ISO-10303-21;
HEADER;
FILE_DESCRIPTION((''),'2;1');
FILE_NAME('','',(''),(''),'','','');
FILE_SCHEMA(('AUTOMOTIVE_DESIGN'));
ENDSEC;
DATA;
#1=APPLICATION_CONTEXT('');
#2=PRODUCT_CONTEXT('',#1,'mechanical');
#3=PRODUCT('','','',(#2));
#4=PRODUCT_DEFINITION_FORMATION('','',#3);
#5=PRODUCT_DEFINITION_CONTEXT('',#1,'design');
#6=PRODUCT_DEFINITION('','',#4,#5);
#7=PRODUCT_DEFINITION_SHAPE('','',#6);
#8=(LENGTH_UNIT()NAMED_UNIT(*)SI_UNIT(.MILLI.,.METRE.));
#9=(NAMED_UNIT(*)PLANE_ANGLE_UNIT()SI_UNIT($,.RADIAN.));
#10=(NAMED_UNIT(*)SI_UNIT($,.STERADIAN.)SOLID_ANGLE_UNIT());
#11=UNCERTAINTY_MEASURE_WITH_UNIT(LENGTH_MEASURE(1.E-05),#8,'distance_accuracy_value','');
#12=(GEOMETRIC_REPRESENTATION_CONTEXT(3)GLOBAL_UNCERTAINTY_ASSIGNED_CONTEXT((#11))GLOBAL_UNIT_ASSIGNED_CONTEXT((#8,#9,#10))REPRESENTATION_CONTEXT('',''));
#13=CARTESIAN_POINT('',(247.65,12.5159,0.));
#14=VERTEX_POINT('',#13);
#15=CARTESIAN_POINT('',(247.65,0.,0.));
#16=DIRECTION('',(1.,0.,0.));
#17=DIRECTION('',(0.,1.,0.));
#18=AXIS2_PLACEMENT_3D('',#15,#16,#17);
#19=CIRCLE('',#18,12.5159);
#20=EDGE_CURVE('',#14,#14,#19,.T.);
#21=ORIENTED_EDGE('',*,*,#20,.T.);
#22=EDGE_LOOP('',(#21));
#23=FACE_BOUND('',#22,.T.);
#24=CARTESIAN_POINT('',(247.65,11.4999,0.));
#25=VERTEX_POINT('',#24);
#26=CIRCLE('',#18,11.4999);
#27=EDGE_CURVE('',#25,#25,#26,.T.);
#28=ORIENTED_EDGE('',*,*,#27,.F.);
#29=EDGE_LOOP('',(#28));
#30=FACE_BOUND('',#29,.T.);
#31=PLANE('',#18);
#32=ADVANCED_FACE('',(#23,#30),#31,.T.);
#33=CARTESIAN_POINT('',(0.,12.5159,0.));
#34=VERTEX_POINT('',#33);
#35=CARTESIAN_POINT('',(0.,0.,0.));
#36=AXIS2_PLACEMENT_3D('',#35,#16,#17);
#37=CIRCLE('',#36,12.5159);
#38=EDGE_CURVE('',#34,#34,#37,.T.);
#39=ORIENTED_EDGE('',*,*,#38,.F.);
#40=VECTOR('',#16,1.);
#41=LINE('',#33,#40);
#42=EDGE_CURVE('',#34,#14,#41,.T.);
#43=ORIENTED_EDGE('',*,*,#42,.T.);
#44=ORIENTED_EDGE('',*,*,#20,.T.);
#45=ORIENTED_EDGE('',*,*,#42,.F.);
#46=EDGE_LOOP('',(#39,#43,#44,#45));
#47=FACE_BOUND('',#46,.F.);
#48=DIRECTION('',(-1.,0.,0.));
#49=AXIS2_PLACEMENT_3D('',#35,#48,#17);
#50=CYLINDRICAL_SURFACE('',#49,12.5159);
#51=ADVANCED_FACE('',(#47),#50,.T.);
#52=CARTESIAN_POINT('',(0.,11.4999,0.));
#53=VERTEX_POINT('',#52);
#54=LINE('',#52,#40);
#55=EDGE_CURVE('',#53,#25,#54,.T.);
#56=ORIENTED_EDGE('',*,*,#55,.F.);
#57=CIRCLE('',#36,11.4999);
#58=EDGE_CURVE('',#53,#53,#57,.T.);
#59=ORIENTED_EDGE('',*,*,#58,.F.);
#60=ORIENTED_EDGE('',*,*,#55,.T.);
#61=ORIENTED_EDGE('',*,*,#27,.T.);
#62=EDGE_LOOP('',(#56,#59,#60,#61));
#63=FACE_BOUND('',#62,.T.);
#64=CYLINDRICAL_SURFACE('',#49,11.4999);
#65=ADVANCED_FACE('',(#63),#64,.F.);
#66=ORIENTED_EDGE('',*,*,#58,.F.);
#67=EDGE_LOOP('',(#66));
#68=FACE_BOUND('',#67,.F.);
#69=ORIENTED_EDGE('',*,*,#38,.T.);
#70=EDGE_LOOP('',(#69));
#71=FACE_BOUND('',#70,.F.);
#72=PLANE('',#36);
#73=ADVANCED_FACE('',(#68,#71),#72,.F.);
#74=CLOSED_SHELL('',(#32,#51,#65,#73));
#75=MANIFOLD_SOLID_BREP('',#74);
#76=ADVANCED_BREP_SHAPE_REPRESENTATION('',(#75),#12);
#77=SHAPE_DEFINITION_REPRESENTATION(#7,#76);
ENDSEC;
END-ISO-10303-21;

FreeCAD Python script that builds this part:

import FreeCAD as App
import Part
import Sketcher
Q = App.Units.Quantity

doc = App.newDocument("Part")
body = doc.addObject("PartDesign::Body", "Body")

sketch1 = body.newObject("Sketcher::SketchObject", "Sketch")
sketch1.AttachmentSupport = (doc.getObject("YZ_Plane"), [""])
sketch1.MapMode = "FlatFace"
sketch1.addGeometry(Part.Circle(App.Vector(0, 0, 0), App.Vector(0, 0, 1), 13), False)
sketch1.addGeometry(Part.Circle(App.Vector(0, 0, 0), App.Vector(0, 0, 1), 11), False)
sketch1.addConstraint(Sketcher.Constraint("Coincident", 0, 3, -1, 1))
sketch1.addConstraint(Sketcher.Constraint("Coincident", 1, 3, -1, 1))
sketch1.addConstraint(Sketcher.Constraint("Diameter", 0, Q("0.9855 in")))
sketch1.addConstraint(Sketcher.Constraint("Diameter", 1, Q("0.9055 in")))
pad1 = body.newObject("PartDesign::Pad", "Pad")
pad1.Profile = sketch1
pad1.Length = Q("9.75 in")

doc.recompute()
